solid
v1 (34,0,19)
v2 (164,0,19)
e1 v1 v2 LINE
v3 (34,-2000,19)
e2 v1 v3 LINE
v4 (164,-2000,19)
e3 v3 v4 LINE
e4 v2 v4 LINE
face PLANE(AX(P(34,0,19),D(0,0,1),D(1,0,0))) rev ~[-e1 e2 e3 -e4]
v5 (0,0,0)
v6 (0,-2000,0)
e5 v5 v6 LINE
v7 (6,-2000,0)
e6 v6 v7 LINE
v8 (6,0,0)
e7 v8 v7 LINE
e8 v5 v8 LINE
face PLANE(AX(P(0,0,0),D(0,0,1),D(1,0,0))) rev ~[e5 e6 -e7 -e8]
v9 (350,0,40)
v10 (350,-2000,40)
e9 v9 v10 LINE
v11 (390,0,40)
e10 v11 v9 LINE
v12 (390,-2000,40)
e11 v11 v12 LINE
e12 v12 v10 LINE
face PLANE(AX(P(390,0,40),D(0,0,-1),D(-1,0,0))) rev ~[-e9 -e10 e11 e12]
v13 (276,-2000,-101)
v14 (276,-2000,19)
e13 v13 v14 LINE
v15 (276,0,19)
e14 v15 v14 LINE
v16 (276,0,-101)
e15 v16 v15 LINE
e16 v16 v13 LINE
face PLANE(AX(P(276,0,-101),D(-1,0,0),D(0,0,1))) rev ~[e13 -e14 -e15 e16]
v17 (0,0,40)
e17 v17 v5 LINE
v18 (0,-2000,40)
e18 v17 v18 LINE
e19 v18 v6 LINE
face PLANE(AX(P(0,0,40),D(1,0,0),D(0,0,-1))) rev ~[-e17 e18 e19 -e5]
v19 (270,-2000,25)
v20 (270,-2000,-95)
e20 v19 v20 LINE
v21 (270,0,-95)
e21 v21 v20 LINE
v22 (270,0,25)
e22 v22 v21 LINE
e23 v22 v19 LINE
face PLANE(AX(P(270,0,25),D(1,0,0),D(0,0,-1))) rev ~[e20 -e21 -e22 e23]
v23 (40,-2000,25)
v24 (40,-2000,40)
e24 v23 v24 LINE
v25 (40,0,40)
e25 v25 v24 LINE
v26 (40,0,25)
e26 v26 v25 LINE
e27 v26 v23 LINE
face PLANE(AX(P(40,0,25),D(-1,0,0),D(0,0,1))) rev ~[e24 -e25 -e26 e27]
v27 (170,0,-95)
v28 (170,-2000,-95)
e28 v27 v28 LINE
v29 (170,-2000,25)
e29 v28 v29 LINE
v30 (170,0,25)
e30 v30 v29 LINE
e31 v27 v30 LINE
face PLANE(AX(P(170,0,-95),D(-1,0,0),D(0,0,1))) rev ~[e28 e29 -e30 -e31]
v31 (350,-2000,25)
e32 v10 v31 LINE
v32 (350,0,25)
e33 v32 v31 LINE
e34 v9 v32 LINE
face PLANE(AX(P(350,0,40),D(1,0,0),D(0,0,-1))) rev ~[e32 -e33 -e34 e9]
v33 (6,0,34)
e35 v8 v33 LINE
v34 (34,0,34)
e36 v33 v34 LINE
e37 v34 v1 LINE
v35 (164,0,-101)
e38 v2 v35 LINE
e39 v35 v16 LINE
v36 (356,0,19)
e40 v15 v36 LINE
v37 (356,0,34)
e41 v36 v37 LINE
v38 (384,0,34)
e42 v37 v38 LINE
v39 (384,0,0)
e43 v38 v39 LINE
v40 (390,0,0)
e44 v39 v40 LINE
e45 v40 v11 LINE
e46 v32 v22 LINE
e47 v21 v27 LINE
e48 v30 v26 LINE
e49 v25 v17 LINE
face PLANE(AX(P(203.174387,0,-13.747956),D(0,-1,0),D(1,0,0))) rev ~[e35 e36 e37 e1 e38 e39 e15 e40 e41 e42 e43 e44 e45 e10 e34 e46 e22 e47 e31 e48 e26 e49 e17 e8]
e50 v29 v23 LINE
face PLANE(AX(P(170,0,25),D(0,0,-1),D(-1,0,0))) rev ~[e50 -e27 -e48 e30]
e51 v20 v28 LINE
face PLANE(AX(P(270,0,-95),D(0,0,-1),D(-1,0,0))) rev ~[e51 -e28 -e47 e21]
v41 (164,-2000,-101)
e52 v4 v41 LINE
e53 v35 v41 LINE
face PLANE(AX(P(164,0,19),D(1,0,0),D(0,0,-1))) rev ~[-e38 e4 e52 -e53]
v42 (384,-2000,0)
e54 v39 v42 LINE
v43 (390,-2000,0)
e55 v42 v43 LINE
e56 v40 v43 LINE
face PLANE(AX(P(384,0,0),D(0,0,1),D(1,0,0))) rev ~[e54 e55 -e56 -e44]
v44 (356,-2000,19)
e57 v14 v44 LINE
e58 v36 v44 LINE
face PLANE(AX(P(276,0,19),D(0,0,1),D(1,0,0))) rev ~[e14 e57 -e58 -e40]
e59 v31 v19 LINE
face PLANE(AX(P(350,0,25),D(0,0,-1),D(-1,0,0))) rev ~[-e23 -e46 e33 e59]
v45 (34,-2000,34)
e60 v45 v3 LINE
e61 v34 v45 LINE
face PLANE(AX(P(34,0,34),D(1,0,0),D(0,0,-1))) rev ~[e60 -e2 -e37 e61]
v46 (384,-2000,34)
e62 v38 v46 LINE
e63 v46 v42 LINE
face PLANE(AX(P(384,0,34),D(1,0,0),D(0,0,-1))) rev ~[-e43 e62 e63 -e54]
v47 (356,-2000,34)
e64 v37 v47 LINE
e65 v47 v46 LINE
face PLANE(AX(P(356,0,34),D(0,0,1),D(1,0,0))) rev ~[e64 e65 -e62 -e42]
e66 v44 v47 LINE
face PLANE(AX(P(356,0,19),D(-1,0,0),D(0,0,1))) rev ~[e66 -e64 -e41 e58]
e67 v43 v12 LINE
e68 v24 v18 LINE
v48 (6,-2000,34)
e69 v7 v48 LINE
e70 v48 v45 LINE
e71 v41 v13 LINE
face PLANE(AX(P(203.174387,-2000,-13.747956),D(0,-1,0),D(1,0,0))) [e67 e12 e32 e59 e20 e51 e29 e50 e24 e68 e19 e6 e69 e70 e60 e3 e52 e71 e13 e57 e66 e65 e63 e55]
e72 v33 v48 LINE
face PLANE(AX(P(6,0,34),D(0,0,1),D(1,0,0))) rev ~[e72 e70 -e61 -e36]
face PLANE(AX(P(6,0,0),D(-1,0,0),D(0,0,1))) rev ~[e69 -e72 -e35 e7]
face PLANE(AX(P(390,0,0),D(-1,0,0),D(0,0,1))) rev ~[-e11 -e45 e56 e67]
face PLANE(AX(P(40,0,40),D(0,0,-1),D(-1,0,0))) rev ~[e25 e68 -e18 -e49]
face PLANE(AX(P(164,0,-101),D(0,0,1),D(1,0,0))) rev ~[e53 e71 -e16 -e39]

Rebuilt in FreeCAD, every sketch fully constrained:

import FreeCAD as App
import Part
import Sketcher
from FreeCAD import Vector
Q = App.Units.Quantity


def add_polygon(sketch, points):
    """Adds a closed chain of lines whose ends are joined by coincident constraints."""
    first, n = sketch.GeometryCount, len(points)
    for a, b in zip(points, points[1:] + points[:1]):
        sketch.addGeometry(Part.LineSegment(App.Vector(*a, 0), App.Vector(*b, 0)), False)
    for i in range(n):
        sketch.addConstraint(Sketcher.Constraint("Coincident", first + i, 2, first + (i + 1) % n, 1))

doc = App.newDocument("Part")
body = doc.addObject("PartDesign::Body", "Body")

sketch1 = doc.addObject("Sketcher::SketchObject", "Sketch")
body.addObject(sketch1)
sketch1.AttachmentSupport = (doc.XZ_Plane, [""])
sketch1.MapMode = "FlatFace"
add_polygon(sketch1, [(0, 40), (0, 0), (6, 0), (6, 34), (34, 34), (34, 19), (164, 19), (164, -101), (276, -101), (276, 19), (356, 19), (356, 34), (384, 34), (384, 0), (390, 0), (390, 40), (350, 40), (350, 25), (270, 25), (270, -95), (170, -95), (170, 25), (40, 25), (40, 40)])
sketch1.addConstraint([
    Sketcher.Constraint("Vertical", 0),
    Sketcher.Constraint("Horizontal", 1),
    Sketcher.Constraint("Vertical", 2),
    Sketcher.Constraint("Horizontal", 3),
    Sketcher.Constraint("Vertical", 4),
    Sketcher.Constraint("Horizontal", 5),
    Sketcher.Constraint("Vertical", 6),
    Sketcher.Constraint("Horizontal", 7),
    Sketcher.Constraint("Vertical", 8),
    Sketcher.Constraint("Horizontal", 9),
    Sketcher.Constraint("Vertical", 10),
    Sketcher.Constraint("Horizontal", 11),
    Sketcher.Constraint("Vertical", 12),
    Sketcher.Constraint("Horizontal", 13),
    Sketcher.Constraint("Vertical", 14),
    Sketcher.Constraint("Horizontal", 15),
    Sketcher.Constraint("Vertical", 16),
    Sketcher.Constraint("Horizontal", 17),
    Sketcher.Constraint("Vertical", 18),
    Sketcher.Constraint("Horizontal", 19),
    Sketcher.Constraint("Vertical", 20),
    Sketcher.Constraint("Horizontal", 21),
    Sketcher.Constraint("Vertical", 22),
    Sketcher.Constraint("Horizontal", 23),
    Sketcher.Constraint("Coincident", 0, 2, -1, 1),
    Sketcher.Constraint("PointOnObject", 12, 2, -1),
    Sketcher.Constraint("Horizontal", 5, 2, 8, 2),
    Sketcher.Constraint("Horizontal", 3, 2, 10, 2),
    Sketcher.Constraint("Horizontal", 17, 2, 20, 2),
    Sketcher.Constraint("Horizontal", 15, 2, 22, 2),
    Sketcher.Constraint("Equal", 3, 11),
    Sketcher.Constraint("Equal", 1, 13),
    Sketcher.Constraint("Equal", 9, 17),
    Sketcher.Constraint("Equal", 5, 21),
    Sketcher.Constraint("Equal", 15, 23),
    Sketcher.Constraint("Equal", 23, 0),
    Sketcher.Constraint("Equal", 10, 16),
    Sketcher.Constraint("Equal", 8, 18),
    Sketcher.Constraint("DistanceX", 1, 1, 1, 2, Q("6 mm")),
    Sketcher.Constraint("DistanceX", 3, 1, 3, 2, Q("28 mm")),
    Sketcher.Constraint("DistanceX", 5, 1, 5, 2, Q("130 mm")),
    Sketcher.Constraint("DistanceX", 7, 1, 7, 2, Q("112 mm")),
    Sketcher.Constraint("DistanceX", 9, 1, 9, 2, Q("80 mm")),
    Sketcher.Constraint("DistanceX", 15, 2, 15, 1, Q("40 mm")),
    Sketcher.Constraint("DistanceY", 2, 1, 2, 2, Q("34 mm")),
    Sketcher.Constraint("DistanceY", 4, 2, 4, 1, Q("15 mm")),
    Sketcher.Constraint("DistanceY", 6, 2, 6, 1, Q("120 mm")),
])
pad1 = doc.addObject("PartDesign::Pad", "Pad")
body.addObject(pad1)
pad1.Profile = sketch1
pad1.Length = 2000

doc.recompute()
